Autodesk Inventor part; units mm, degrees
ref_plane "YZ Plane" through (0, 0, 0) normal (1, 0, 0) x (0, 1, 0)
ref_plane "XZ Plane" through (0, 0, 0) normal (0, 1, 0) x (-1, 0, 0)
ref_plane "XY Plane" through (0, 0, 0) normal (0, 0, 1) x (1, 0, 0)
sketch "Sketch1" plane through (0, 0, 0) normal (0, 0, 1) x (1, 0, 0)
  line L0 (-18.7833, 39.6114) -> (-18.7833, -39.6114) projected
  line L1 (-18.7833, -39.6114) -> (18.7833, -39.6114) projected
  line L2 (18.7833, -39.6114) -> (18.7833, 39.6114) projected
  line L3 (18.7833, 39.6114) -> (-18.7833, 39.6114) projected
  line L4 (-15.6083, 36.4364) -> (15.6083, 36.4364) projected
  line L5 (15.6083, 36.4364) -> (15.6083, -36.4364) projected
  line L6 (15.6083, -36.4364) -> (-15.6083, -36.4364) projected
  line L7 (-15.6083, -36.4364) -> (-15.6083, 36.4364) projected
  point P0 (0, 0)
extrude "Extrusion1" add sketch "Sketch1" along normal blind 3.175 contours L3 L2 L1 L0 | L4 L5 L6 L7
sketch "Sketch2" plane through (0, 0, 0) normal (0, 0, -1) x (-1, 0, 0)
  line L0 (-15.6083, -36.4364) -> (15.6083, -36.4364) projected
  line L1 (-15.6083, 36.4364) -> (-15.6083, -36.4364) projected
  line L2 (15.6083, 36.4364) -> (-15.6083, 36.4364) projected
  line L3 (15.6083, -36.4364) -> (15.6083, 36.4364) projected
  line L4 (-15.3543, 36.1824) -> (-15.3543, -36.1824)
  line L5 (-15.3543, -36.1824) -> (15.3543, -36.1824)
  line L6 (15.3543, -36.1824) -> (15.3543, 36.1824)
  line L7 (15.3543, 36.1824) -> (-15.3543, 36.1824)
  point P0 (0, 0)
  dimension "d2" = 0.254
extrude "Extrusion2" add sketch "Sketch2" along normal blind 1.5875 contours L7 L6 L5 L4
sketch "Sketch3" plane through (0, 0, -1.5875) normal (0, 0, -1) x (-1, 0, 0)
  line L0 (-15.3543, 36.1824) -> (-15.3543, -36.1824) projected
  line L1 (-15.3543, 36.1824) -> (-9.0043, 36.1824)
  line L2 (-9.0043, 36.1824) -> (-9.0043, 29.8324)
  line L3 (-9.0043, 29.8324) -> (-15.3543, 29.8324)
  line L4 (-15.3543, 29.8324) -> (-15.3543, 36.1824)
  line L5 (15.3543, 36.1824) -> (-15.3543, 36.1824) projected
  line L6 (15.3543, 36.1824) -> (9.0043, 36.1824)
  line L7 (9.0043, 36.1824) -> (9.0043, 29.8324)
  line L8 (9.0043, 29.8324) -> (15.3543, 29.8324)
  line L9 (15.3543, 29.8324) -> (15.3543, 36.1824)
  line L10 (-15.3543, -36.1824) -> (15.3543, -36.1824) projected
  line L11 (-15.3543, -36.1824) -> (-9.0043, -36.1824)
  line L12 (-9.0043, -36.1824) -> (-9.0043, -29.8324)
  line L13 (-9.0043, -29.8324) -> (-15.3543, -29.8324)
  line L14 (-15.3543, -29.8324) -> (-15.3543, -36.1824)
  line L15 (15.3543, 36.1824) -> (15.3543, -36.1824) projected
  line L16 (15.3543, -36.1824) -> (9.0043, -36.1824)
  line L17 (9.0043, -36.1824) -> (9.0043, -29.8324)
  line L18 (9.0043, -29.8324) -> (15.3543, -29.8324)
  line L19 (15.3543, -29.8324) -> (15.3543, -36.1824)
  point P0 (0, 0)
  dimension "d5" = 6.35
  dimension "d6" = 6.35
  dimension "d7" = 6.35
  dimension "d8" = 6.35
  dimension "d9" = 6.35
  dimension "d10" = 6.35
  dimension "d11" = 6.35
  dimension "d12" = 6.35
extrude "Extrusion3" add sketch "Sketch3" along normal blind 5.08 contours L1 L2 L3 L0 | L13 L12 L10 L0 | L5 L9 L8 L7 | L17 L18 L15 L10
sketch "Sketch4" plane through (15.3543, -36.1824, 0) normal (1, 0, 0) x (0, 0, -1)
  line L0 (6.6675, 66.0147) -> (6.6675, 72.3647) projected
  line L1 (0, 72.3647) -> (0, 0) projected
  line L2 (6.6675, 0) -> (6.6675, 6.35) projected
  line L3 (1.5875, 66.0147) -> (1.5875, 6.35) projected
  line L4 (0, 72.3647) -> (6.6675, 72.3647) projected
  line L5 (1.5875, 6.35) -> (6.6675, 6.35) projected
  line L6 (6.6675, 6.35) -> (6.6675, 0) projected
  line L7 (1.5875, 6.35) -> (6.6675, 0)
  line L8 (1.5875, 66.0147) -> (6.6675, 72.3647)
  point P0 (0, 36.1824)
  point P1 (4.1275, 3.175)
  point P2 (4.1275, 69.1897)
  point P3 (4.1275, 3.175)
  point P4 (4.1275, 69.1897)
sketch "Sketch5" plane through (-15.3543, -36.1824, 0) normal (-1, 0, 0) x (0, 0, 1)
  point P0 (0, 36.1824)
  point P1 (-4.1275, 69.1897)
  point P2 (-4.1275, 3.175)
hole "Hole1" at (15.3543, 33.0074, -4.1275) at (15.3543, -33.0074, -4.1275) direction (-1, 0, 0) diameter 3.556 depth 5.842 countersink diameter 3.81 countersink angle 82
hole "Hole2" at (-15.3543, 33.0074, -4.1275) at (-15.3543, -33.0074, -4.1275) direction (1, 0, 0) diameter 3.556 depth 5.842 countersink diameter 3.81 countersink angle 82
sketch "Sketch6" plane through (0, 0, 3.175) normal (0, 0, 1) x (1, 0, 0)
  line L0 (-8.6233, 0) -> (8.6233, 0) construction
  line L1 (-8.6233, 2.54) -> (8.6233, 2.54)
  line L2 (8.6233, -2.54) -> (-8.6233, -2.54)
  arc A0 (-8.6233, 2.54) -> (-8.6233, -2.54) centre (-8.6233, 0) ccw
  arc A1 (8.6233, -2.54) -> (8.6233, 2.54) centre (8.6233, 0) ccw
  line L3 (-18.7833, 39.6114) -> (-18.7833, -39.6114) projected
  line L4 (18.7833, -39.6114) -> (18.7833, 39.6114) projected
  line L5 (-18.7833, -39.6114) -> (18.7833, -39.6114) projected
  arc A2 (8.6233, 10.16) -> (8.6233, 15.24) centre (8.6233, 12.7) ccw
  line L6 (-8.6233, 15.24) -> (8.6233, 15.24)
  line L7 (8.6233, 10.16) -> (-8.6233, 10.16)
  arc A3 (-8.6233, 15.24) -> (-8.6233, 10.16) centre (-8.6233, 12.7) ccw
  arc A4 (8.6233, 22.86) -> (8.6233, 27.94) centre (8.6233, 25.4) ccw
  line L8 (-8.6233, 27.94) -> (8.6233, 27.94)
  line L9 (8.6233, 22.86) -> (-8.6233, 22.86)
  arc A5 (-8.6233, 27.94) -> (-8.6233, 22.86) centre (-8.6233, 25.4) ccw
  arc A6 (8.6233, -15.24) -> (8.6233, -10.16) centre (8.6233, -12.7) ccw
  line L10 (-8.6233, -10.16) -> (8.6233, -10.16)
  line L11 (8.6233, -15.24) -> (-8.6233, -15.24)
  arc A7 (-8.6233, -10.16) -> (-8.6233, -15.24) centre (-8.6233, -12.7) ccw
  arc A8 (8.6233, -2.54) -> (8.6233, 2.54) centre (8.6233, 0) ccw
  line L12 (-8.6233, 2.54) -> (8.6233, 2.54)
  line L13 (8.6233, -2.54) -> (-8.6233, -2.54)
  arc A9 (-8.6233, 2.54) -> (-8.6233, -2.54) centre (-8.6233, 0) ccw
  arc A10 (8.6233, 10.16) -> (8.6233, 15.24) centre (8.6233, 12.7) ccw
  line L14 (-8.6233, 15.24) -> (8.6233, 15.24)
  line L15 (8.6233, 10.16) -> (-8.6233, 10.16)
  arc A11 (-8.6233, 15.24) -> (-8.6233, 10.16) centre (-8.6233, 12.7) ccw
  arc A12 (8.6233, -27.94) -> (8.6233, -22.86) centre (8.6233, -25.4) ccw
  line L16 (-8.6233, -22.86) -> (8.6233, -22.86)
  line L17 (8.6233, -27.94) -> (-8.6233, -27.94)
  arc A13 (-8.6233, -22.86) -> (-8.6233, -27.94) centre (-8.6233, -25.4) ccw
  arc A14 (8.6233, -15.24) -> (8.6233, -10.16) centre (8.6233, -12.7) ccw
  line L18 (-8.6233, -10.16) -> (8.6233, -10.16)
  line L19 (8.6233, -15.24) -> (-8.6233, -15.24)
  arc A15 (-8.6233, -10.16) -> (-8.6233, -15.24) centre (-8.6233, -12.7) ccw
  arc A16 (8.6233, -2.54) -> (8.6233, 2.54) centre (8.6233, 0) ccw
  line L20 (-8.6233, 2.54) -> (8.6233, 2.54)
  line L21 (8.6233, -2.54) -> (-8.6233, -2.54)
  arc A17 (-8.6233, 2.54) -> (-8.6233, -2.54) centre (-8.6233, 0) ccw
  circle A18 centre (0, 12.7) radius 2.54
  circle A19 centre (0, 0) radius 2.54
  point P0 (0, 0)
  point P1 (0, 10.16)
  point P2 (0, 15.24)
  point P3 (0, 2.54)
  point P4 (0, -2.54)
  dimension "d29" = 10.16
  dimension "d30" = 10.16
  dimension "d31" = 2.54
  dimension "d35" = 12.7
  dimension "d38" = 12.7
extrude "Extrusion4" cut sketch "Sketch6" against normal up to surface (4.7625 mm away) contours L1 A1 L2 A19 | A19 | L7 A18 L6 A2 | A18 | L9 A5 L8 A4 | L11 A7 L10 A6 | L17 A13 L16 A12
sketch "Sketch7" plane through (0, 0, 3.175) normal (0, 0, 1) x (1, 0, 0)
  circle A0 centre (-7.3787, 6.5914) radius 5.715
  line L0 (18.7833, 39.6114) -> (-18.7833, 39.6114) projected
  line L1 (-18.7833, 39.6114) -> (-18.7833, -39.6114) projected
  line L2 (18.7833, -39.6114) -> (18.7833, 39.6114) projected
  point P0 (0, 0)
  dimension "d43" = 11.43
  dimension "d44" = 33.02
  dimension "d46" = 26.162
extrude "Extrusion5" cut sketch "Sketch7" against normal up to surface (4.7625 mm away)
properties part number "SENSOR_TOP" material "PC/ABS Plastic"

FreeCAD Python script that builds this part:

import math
import FreeCAD as App
import Part
import Sketcher

V = App.Vector
Q = App.Units.Quantity

doc = App.newDocument("Part")
body = doc.addObject("PartDesign::Body", "Body")

sketch1 = body.newObject("Sketcher::SketchObject", "Sketch")
sketch1.AttachmentSupport = (doc.getObject("XY_Plane"), [""])
sketch1.MapMode = "FlatFace"
sketch1.addGeometry([
    Part.LineSegment(V(19, 40, 0), V(-19, 40, 0)),
    Part.LineSegment(V(-19, 40, 0), V(-19, -40, 0)),
    Part.LineSegment(V(-19, -40, 0), V(19, -40, 0)),
    Part.LineSegment(V(19, -40, 0), V(19, 40, 0)),
], False)
sketch1.addConstraint([
    Sketcher.Constraint("Coincident", 0, 2, 1, 1),
    Sketcher.Constraint("Coincident", 1, 2, 2, 1),
    Sketcher.Constraint("Coincident", 2, 2, 3, 1),
    Sketcher.Constraint("Coincident", 3, 2, 0, 1),
    Sketcher.Constraint("Horizontal", 0),
    Sketcher.Constraint("Vertical", 1),
    Sketcher.Constraint("Horizontal", 2),
    Sketcher.Constraint("Vertical", 3),
    Sketcher.Constraint("Symmetric", 0, 2, 2, 2, -1, 1),
    Sketcher.Constraint("DistanceX", 0, 2, 0, 1, Q("1.479 in")),
    Sketcher.Constraint("DistanceY", 1, 2, 1, 1, Q("3.119 in")),
])
pad1 = body.newObject("PartDesign::Pad", "Pad")
pad1.Profile = sketch1
pad1.Length = Q("0.125 in")

sketch2 = body.newObject("Sketcher::SketchObject", "Sketch001")
sketch2.AttachmentSupport = (doc.getObject("XY_Plane"), [""])
sketch2.MapMode = "FlatFace"
sketch2.addGeometry([
    Part.LineSegment(V(-15, 36, 0), V(15, 36, 0)),
    Part.LineSegment(V(15, 36, 0), V(15, -36, 0)),
    Part.LineSegment(V(15, -36, 0), V(-15, -36, 0)),
    Part.LineSegment(V(-15, -36, 0), V(-15, 36, 0)),
], False)
sketch2.addConstraint([
    Sketcher.Constraint("Coincident", 0, 2, 1, 1),
    Sketcher.Constraint("Coincident", 1, 2, 2, 1),
    Sketcher.Constraint("Coincident", 2, 2, 3, 1),
    Sketcher.Constraint("Coincident", 3, 2, 0, 1),
    Sketcher.Constraint("Horizontal", 0),
    Sketcher.Constraint("Vertical", 1),
    Sketcher.Constraint("Horizontal", 2),
    Sketcher.Constraint("Vertical", 3),
    Sketcher.Constraint("Symmetric", 0, 2, 2, 2, -1, 1),
    Sketcher.Constraint("DistanceX", 0, 1, 0, 2, Q("1.209 in")),
    Sketcher.Constraint("DistanceY", 1, 2, 1, 1, Q("2.849 in")),
])
pad2 = body.newObject("PartDesign::Pad", "Pad001")
pad2.Profile = sketch2
pad2.Length = Q("0.0625 in")
pad2.Reversed = True

sketch3 = body.newObject("Sketcher::SketchObject", "Sketch002")
sketch3.AttachmentSupport = (doc.getObject("XY_Plane"), [""])
sketch3.MapMode = "FlatFace"
sketch3.AttachmentOffset = App.Placement(V(0, 0, -0.0625 * 25.4), App.Rotation())
sketch3.addGeometry([
    Part.LineSegment(V(9, 36, 0), V(15, 36, 0)),
    Part.LineSegment(V(15, 36, 0), V(15, 30, 0)),
    Part.LineSegment(V(15, 30, 0), V(9, 30, 0)),
    Part.LineSegment(V(9, 30, 0), V(9, 36, 0)),
    Part.LineSegment(V(9, -30, 0), V(15, -30, 0)),
    Part.LineSegment(V(15, -30, 0), V(15, -36, 0)),
    Part.LineSegment(V(15, -36, 0), V(9, -36, 0)),
    Part.LineSegment(V(9, -36, 0), V(9, -30, 0)),
    Part.LineSegment(V(-15, 36, 0), V(-9, 36, 0)),
    Part.LineSegment(V(-9, 36, 0), V(-9, 30, 0)),
    Part.LineSegment(V(-9, 30, 0), V(-15, 30, 0)),
    Part.LineSegment(V(-15, 30, 0), V(-15, 36, 0)),
    Part.LineSegment(V(-9, -30, 0), V(-9, -36, 0)),
    Part.LineSegment(V(-9, -36, 0), V(-15, -36, 0)),
    Part.LineSegment(V(-15, -36, 0), V(-15, -30, 0)),
    Part.LineSegment(V(-15, -30, 0), V(-9, -30, 0)),
], False)
sketch3.addConstraint([
    Sketcher.Constraint("Coincident", 0, 2, 1, 1),
    Sketcher.Constraint("Coincident", 1, 2, 2, 1),
    Sketcher.Constraint("Coincident", 2, 2, 3, 1),
    Sketcher.Constraint("Coincident", 3, 2, 0, 1),
    Sketcher.Constraint("Coincident", 4, 2, 5, 1),
    Sketcher.Constraint("Coincident", 5, 2, 6, 1),
    Sketcher.Constraint("Coincident", 6, 2, 7, 1),
    Sketcher.Constraint("Coincident", 7, 2, 4, 1),
    Sketcher.Constraint("Coincident", 8, 2, 9, 1),
    Sketcher.Constraint("Coincident", 9, 2, 10, 1),
    Sketcher.Constraint("Coincident", 10, 2, 11, 1),
    Sketcher.Constraint("Coincident", 11, 2, 8, 1),
    Sketcher.Constraint("Coincident", 12, 2, 13, 1),
    Sketcher.Constraint("Coincident", 13, 2, 14, 1),
    Sketcher.Constraint("Coincident", 14, 2, 15, 1),
    Sketcher.Constraint("Coincident", 15, 2, 12, 1),
    Sketcher.Constraint("Horizontal", 0),
    Sketcher.Constraint("Vertical", 1),
    Sketcher.Constraint("Horizontal", 2),
    Sketcher.Constraint("Vertical", 3),
    Sketcher.Constraint("Horizontal", 4),
    Sketcher.Constraint("Vertical", 5),
    Sketcher.Constraint("Horizontal", 6),
    Sketcher.Constraint("Vertical", 7),
    Sketcher.Constraint("Horizontal", 8),
    Sketcher.Constraint("Vertical", 9),
    Sketcher.Constraint("Horizontal", 10),
    Sketcher.Constraint("Vertical", 11),
    Sketcher.Constraint("Vertical", 12),
    Sketcher.Constraint("Horizontal", 13),
    Sketcher.Constraint("Vertical", 14),
    Sketcher.Constraint("Horizontal", 15),
    Sketcher.Constraint("Symmetric", 6, 2, 8, 2, -1, 1),
    Sketcher.Constraint("Symmetric", 4, 2, 10, 2, -1, 1),
    Sketcher.Constraint("Symmetric", 3, 2, 12, 2, -1, 1),
    Sketcher.Constraint("Symmetric", 1, 2, 14, 2, -1, 1),
    Sketcher.Constraint("Symmetric", 3, 2, 8, 2, -2),
    Sketcher.Constraint("Symmetric", 1, 2, 10, 2, -2),
    Sketcher.Constraint("Equal", 15, 1),
    Sketcher.Constraint("DistanceX", 0, 1, 0, 2, Q("0.25 in")),
    Sketcher.Constraint("DistanceY", 4, 2, 1, 2, Q("2.349 in")),
    Sketcher.Constraint("DistanceX", 8, 2, 3, 2, Q("0.709 in")),
])
pad3 = body.newObject("PartDesign::Pad", "Pad002")
pad3.Profile = sketch3
pad3.Length = Q("0.2 in")
pad3.Reversed = True

sketch4 = body.newObject("Sketcher::SketchObject", "Sketch003")
sketch4.AttachmentSupport = (doc.getObject("YZ_Plane"), [""])
sketch4.MapMode = "FlatFace"
sketch4.AttachmentOffset = App.Placement(V(0, 0, 0.6045 * 25.4), App.Rotation())
sketch4.addGeometry([
    Part.Circle(V(33, -4.1, 0), V(0, 0, 1), 1.8),
    Part.Circle(V(-33, -4.1, 0), V(0, 0, 1), 1.8),
], False)
sketch4.addConstraint([
    Sketcher.Constraint("Equal", 0, 1),
    Sketcher.Constraint("Symmetric", 0, 3, 1, 3, -2),
    Sketcher.Constraint("Diameter", 0, Q("0.14 in")),
    Sketcher.Constraint("DistanceX", 1, 3, 0, 3, Q("2.599 in")),
    Sketcher.Constraint("DistanceY", 0, 3, -1, 1, Q("0.1625 in")),
])
doc.recompute()
hole = body.newObject("PartDesign::Hole", "Hole")
hole.Profile = sketch4
hole.ThreadType = "None"
hole.Diameter = Q("0.14 in")
hole.DepthType = "Dimension"
hole.Depth = Q("0.23 in")
hole.DrillPoint = "Flat"
hole.HoleCutType = "Countersink"
hole.HoleCutDiameter = Q("0.15 in")
hole.HoleCutCountersinkAngle = 82

sketch5 = body.newObject("Sketcher::SketchObject", "Sketch004")
sketch5.AttachmentSupport = (doc.getObject("YZ_Plane"), [""])
sketch5.MapMode = "FlatFace"
sketch5.AttachmentOffset = App.Placement(V(0, 0, -0.6045 * 25.4), App.Rotation())
sketch5.addGeometry([
    Part.Circle(V(33, -4.1, 0), V(0, 0, 1), 1.8),
    Part.Circle(V(-33, -4.1, 0), V(0, 0, 1), 1.8),
], False)
sketch5.addConstraint([
    Sketcher.Constraint("Equal", 0, 1),
    Sketcher.Constraint("Symmetric", 0, 3, 1, 3, -2),
    Sketcher.Constraint("Diameter", 0, Q("0.14 in")),
    Sketcher.Constraint("DistanceX", 1, 3, 0, 3, Q("2.599 in")),
    Sketcher.Constraint("DistanceY", 0, 3, -1, 1, Q("0.1625 in")),
])
doc.recompute()
hole2 = body.newObject("PartDesign::Hole", "Hole001")
hole2.Profile = sketch5
hole2.ThreadType = "None"
hole2.Diameter = Q("0.14 in")
hole2.DepthType = "Dimension"
hole2.Depth = Q("0.23 in")
hole2.DrillPoint = "Flat"
hole2.HoleCutType = "Countersink"
hole2.HoleCutDiameter = Q("0.15 in")
hole2.HoleCutCountersinkAngle = 82
hole2.Reversed = True

sketch6 = body.newObject("Sketcher::SketchObject", "Sketch005")
sketch6.AttachmentSupport = (doc.getObject("XY_Plane"), [""])
sketch6.MapMode = "FlatFace"
sketch6.AttachmentOffset = App.Placement(V(0, 0, 0.125 * 25.4), App.Rotation())
sketch6.addGeometry([
    Part.LineSegment(V(8.6, 2.5, 0), V(0, 2.5, 0)),
    Part.ArcOfCircle(Part.Circle(V(0, 0, 0), V(0, 0, 1), 2.5), math.radians(90), math.radians(270)),
    Part.LineSegment(V(0, -2.5, 0), V(8.6, -2.5, 0)),
    Part.ArcOfCircle(Part.Circle(V(8.6, 0, 0), V(0, 0, 1), 2.5), math.radians(-90), math.radians(90)),
    Part.LineSegment(V(0, 10.2, 0), V(8.6, 10.2, 0)),
    Part.ArcOfCircle(Part.Circle(V(8.6, 12.7, 0), V(0, 0, 1), 2.5), math.radians(-90), math.radians(90)),
    Part.LineSegment(V(8.6, 15.2, 0), V(0, 15.2, 0)),
    Part.ArcOfCircle(Part.Circle(V(0, 12.7, 0), V(0, 0, 1), 2.5), math.radians(90), math.radians(270)),
    Part.LineSegment(V(-8.6, 22.9, 0), V(8.6, 22.9, 0)),
    Part.ArcOfCircle(Part.Circle(V(8.6, 25.4, 0), V(0, 0, 1), 2.5), math.radians(-90), math.radians(90)),
    Part.LineSegment(V(8.6, 27.9, 0), V(-8.6, 27.9, 0)),
    Part.ArcOfCircle(Part.Circle(V(-8.6, 25.4, 0), V(0, 0, 1), 2.5), math.radians(90), math.radians(270)),
    Part.LineSegment(V(-8.6, -15.2, 0), V(8.6, -15.2, 0)),
    Part.ArcOfCircle(Part.Circle(V(8.6, -12.7, 0), V(0, 0, 1), 2.5), math.radians(-90), math.radians(90)),
    Part.LineSegment(V(8.6, -10.2, 0), V(-8.6, -10.2, 0)),
    Part.ArcOfCircle(Part.Circle(V(-8.6, -12.7, 0), V(0, 0, 1), 2.5), math.radians(90), math.radians(270)),
    Part.LineSegment(V(-8.6, -27.9, 0), V(8.6, -27.9, 0)),
    Part.ArcOfCircle(Part.Circle(V(8.6, -25.4, 0), V(0, 0, 1), 2.5), math.radians(-90), math.radians(90)),
    Part.LineSegment(V(8.6, -22.9, 0), V(-8.6, -22.9, 0)),
    Part.ArcOfCircle(Part.Circle(V(-8.6, -25.4, 0), V(0, 0, 1), 2.5), math.radians(90), math.radians(270)),
], False)
sketch6.addConstraint([
    Sketcher.Constraint("Tangent", 0, 2, 1, 1),
    Sketcher.Constraint("Tangent", 1, 2, 2, 1),
    Sketcher.Constraint("Tangent", 2, 2, 3, 1),
    Sketcher.Constraint("Tangent", 3, 2, 0, 1),
    Sketcher.Constraint("Tangent", 4, 2, 5, 1),
    Sketcher.Constraint("Tangent", 5, 2, 6, 1),
    Sketcher.Constraint("Tangent", 6, 2, 7, 1),
    Sketcher.Constraint("Tangent", 7, 2, 4, 1),
    Sketcher.Constraint("Tangent", 8, 2, 9, 1),
    Sketcher.Constraint("Tangent", 9, 2, 10, 1),
    Sketcher.Constraint("Tangent", 10, 2, 11, 1),
    Sketcher.Constraint("Tangent", 11, 2, 8, 1),
    Sketcher.Constraint("Tangent", 12, 2, 13, 1),
    Sketcher.Constraint("Tangent", 13, 2, 14, 1),
    Sketcher.Constraint("Tangent", 14, 2, 15, 1),
    Sketcher.Constraint("Tangent", 15, 2, 12, 1),
    Sketcher.Constraint("Tangent", 16, 2, 17, 1),
    Sketcher.Constraint("Tangent", 17, 2, 18, 1),
    Sketcher.Constraint("Tangent", 18, 2, 19, 1),
    Sketcher.Constraint("Tangent", 19, 2, 16, 1),
    Sketcher.Constraint("Horizontal", 0),
    Sketcher.Constraint("Horizontal", 2),
    Sketcher.Constraint("Horizontal", 4),
    Sketcher.Constraint("Horizontal", 6),
    Sketcher.Constraint("Horizontal", 8),
    Sketcher.Constraint("Horizontal", 10),
    Sketcher.Constraint("Horizontal", 12),
    Sketcher.Constraint("Horizontal", 14),
    Sketcher.Constraint("Horizontal", 16),
    Sketcher.Constraint("Horizontal", 18),
    Sketcher.Constraint("Coincident", 1, 3, -1, 1),
    Sketcher.Constraint("Equal", 3, 5),
    Sketcher.Constraint("Equal", 7, 9),
    Sketcher.Constraint("Equal", 11, 13),
    Sketcher.Constraint("Equal", 15, 17),
    Sketcher.Constraint("Symmetric", 5, 3, 15, 3, -1, 1),
    Sketcher.Constraint("Symmetric", 11, 3, 17, 3, -1, 1),
    Sketcher.Constraint("PointOnObject", 7, 3, -2),
    Sketcher.Constraint("Vertical", 3, 3, 5, 3),
    Sketcher.Constraint("Vertical", 5, 3, 9, 3),
    Sketcher.Constraint("Vertical", 9, 3, 13, 3),
    Sketcher.Constraint("Vertical", 11, 3, 15, 3),
    Sketcher.Constraint("Vertical", 15, 3, 19, 3),
    Sketcher.Constraint("Radius", 1, Q("0.1 in")),
    Sketcher.Constraint("DistanceY", -1, 1, 5, 3, Q("0.5 in")),
    Sketcher.Constraint("DistanceY", 5, 3, 9, 3, Q("0.5 in")),
    Sketcher.Constraint("DistanceX", 8, 1, 8, 2, Q("0.679 in")),
])
pocket1 = body.newObject("PartDesign::Pocket", "Pocket")
pocket1.Profile = sketch6
pocket1.Length = Q("0.1875 in")

sketch7 = body.newObject("Sketcher::SketchObject", "Sketch006")
sketch7.AttachmentSupport = (doc.getObject("XY_Plane"), [""])
sketch7.MapMode = "FlatFace"
sketch7.AttachmentOffset = App.Placement(V(0, 0, 0.125 * 25.4), App.Rotation())
sketch7.addGeometry(Part.Circle(V(-7, 7, 0), V(0, 0, 1), 6), False)
sketch7.addConstraint([
    Sketcher.Constraint("Diameter", 0, Q("0.45 in")),
    Sketcher.Constraint("DistanceX", 0, 3, -1, 1, Q("0.2905 in")),
    Sketcher.Constraint("DistanceY", -1, 1, 0, 3, Q("0.2595 in")),
])
pocket2 = body.newObject("PartDesign::Pocket", "Pocket001")
pocket2.Profile = sketch7
pocket2.Length = Q("0.1875 in")

doc.recompute()
